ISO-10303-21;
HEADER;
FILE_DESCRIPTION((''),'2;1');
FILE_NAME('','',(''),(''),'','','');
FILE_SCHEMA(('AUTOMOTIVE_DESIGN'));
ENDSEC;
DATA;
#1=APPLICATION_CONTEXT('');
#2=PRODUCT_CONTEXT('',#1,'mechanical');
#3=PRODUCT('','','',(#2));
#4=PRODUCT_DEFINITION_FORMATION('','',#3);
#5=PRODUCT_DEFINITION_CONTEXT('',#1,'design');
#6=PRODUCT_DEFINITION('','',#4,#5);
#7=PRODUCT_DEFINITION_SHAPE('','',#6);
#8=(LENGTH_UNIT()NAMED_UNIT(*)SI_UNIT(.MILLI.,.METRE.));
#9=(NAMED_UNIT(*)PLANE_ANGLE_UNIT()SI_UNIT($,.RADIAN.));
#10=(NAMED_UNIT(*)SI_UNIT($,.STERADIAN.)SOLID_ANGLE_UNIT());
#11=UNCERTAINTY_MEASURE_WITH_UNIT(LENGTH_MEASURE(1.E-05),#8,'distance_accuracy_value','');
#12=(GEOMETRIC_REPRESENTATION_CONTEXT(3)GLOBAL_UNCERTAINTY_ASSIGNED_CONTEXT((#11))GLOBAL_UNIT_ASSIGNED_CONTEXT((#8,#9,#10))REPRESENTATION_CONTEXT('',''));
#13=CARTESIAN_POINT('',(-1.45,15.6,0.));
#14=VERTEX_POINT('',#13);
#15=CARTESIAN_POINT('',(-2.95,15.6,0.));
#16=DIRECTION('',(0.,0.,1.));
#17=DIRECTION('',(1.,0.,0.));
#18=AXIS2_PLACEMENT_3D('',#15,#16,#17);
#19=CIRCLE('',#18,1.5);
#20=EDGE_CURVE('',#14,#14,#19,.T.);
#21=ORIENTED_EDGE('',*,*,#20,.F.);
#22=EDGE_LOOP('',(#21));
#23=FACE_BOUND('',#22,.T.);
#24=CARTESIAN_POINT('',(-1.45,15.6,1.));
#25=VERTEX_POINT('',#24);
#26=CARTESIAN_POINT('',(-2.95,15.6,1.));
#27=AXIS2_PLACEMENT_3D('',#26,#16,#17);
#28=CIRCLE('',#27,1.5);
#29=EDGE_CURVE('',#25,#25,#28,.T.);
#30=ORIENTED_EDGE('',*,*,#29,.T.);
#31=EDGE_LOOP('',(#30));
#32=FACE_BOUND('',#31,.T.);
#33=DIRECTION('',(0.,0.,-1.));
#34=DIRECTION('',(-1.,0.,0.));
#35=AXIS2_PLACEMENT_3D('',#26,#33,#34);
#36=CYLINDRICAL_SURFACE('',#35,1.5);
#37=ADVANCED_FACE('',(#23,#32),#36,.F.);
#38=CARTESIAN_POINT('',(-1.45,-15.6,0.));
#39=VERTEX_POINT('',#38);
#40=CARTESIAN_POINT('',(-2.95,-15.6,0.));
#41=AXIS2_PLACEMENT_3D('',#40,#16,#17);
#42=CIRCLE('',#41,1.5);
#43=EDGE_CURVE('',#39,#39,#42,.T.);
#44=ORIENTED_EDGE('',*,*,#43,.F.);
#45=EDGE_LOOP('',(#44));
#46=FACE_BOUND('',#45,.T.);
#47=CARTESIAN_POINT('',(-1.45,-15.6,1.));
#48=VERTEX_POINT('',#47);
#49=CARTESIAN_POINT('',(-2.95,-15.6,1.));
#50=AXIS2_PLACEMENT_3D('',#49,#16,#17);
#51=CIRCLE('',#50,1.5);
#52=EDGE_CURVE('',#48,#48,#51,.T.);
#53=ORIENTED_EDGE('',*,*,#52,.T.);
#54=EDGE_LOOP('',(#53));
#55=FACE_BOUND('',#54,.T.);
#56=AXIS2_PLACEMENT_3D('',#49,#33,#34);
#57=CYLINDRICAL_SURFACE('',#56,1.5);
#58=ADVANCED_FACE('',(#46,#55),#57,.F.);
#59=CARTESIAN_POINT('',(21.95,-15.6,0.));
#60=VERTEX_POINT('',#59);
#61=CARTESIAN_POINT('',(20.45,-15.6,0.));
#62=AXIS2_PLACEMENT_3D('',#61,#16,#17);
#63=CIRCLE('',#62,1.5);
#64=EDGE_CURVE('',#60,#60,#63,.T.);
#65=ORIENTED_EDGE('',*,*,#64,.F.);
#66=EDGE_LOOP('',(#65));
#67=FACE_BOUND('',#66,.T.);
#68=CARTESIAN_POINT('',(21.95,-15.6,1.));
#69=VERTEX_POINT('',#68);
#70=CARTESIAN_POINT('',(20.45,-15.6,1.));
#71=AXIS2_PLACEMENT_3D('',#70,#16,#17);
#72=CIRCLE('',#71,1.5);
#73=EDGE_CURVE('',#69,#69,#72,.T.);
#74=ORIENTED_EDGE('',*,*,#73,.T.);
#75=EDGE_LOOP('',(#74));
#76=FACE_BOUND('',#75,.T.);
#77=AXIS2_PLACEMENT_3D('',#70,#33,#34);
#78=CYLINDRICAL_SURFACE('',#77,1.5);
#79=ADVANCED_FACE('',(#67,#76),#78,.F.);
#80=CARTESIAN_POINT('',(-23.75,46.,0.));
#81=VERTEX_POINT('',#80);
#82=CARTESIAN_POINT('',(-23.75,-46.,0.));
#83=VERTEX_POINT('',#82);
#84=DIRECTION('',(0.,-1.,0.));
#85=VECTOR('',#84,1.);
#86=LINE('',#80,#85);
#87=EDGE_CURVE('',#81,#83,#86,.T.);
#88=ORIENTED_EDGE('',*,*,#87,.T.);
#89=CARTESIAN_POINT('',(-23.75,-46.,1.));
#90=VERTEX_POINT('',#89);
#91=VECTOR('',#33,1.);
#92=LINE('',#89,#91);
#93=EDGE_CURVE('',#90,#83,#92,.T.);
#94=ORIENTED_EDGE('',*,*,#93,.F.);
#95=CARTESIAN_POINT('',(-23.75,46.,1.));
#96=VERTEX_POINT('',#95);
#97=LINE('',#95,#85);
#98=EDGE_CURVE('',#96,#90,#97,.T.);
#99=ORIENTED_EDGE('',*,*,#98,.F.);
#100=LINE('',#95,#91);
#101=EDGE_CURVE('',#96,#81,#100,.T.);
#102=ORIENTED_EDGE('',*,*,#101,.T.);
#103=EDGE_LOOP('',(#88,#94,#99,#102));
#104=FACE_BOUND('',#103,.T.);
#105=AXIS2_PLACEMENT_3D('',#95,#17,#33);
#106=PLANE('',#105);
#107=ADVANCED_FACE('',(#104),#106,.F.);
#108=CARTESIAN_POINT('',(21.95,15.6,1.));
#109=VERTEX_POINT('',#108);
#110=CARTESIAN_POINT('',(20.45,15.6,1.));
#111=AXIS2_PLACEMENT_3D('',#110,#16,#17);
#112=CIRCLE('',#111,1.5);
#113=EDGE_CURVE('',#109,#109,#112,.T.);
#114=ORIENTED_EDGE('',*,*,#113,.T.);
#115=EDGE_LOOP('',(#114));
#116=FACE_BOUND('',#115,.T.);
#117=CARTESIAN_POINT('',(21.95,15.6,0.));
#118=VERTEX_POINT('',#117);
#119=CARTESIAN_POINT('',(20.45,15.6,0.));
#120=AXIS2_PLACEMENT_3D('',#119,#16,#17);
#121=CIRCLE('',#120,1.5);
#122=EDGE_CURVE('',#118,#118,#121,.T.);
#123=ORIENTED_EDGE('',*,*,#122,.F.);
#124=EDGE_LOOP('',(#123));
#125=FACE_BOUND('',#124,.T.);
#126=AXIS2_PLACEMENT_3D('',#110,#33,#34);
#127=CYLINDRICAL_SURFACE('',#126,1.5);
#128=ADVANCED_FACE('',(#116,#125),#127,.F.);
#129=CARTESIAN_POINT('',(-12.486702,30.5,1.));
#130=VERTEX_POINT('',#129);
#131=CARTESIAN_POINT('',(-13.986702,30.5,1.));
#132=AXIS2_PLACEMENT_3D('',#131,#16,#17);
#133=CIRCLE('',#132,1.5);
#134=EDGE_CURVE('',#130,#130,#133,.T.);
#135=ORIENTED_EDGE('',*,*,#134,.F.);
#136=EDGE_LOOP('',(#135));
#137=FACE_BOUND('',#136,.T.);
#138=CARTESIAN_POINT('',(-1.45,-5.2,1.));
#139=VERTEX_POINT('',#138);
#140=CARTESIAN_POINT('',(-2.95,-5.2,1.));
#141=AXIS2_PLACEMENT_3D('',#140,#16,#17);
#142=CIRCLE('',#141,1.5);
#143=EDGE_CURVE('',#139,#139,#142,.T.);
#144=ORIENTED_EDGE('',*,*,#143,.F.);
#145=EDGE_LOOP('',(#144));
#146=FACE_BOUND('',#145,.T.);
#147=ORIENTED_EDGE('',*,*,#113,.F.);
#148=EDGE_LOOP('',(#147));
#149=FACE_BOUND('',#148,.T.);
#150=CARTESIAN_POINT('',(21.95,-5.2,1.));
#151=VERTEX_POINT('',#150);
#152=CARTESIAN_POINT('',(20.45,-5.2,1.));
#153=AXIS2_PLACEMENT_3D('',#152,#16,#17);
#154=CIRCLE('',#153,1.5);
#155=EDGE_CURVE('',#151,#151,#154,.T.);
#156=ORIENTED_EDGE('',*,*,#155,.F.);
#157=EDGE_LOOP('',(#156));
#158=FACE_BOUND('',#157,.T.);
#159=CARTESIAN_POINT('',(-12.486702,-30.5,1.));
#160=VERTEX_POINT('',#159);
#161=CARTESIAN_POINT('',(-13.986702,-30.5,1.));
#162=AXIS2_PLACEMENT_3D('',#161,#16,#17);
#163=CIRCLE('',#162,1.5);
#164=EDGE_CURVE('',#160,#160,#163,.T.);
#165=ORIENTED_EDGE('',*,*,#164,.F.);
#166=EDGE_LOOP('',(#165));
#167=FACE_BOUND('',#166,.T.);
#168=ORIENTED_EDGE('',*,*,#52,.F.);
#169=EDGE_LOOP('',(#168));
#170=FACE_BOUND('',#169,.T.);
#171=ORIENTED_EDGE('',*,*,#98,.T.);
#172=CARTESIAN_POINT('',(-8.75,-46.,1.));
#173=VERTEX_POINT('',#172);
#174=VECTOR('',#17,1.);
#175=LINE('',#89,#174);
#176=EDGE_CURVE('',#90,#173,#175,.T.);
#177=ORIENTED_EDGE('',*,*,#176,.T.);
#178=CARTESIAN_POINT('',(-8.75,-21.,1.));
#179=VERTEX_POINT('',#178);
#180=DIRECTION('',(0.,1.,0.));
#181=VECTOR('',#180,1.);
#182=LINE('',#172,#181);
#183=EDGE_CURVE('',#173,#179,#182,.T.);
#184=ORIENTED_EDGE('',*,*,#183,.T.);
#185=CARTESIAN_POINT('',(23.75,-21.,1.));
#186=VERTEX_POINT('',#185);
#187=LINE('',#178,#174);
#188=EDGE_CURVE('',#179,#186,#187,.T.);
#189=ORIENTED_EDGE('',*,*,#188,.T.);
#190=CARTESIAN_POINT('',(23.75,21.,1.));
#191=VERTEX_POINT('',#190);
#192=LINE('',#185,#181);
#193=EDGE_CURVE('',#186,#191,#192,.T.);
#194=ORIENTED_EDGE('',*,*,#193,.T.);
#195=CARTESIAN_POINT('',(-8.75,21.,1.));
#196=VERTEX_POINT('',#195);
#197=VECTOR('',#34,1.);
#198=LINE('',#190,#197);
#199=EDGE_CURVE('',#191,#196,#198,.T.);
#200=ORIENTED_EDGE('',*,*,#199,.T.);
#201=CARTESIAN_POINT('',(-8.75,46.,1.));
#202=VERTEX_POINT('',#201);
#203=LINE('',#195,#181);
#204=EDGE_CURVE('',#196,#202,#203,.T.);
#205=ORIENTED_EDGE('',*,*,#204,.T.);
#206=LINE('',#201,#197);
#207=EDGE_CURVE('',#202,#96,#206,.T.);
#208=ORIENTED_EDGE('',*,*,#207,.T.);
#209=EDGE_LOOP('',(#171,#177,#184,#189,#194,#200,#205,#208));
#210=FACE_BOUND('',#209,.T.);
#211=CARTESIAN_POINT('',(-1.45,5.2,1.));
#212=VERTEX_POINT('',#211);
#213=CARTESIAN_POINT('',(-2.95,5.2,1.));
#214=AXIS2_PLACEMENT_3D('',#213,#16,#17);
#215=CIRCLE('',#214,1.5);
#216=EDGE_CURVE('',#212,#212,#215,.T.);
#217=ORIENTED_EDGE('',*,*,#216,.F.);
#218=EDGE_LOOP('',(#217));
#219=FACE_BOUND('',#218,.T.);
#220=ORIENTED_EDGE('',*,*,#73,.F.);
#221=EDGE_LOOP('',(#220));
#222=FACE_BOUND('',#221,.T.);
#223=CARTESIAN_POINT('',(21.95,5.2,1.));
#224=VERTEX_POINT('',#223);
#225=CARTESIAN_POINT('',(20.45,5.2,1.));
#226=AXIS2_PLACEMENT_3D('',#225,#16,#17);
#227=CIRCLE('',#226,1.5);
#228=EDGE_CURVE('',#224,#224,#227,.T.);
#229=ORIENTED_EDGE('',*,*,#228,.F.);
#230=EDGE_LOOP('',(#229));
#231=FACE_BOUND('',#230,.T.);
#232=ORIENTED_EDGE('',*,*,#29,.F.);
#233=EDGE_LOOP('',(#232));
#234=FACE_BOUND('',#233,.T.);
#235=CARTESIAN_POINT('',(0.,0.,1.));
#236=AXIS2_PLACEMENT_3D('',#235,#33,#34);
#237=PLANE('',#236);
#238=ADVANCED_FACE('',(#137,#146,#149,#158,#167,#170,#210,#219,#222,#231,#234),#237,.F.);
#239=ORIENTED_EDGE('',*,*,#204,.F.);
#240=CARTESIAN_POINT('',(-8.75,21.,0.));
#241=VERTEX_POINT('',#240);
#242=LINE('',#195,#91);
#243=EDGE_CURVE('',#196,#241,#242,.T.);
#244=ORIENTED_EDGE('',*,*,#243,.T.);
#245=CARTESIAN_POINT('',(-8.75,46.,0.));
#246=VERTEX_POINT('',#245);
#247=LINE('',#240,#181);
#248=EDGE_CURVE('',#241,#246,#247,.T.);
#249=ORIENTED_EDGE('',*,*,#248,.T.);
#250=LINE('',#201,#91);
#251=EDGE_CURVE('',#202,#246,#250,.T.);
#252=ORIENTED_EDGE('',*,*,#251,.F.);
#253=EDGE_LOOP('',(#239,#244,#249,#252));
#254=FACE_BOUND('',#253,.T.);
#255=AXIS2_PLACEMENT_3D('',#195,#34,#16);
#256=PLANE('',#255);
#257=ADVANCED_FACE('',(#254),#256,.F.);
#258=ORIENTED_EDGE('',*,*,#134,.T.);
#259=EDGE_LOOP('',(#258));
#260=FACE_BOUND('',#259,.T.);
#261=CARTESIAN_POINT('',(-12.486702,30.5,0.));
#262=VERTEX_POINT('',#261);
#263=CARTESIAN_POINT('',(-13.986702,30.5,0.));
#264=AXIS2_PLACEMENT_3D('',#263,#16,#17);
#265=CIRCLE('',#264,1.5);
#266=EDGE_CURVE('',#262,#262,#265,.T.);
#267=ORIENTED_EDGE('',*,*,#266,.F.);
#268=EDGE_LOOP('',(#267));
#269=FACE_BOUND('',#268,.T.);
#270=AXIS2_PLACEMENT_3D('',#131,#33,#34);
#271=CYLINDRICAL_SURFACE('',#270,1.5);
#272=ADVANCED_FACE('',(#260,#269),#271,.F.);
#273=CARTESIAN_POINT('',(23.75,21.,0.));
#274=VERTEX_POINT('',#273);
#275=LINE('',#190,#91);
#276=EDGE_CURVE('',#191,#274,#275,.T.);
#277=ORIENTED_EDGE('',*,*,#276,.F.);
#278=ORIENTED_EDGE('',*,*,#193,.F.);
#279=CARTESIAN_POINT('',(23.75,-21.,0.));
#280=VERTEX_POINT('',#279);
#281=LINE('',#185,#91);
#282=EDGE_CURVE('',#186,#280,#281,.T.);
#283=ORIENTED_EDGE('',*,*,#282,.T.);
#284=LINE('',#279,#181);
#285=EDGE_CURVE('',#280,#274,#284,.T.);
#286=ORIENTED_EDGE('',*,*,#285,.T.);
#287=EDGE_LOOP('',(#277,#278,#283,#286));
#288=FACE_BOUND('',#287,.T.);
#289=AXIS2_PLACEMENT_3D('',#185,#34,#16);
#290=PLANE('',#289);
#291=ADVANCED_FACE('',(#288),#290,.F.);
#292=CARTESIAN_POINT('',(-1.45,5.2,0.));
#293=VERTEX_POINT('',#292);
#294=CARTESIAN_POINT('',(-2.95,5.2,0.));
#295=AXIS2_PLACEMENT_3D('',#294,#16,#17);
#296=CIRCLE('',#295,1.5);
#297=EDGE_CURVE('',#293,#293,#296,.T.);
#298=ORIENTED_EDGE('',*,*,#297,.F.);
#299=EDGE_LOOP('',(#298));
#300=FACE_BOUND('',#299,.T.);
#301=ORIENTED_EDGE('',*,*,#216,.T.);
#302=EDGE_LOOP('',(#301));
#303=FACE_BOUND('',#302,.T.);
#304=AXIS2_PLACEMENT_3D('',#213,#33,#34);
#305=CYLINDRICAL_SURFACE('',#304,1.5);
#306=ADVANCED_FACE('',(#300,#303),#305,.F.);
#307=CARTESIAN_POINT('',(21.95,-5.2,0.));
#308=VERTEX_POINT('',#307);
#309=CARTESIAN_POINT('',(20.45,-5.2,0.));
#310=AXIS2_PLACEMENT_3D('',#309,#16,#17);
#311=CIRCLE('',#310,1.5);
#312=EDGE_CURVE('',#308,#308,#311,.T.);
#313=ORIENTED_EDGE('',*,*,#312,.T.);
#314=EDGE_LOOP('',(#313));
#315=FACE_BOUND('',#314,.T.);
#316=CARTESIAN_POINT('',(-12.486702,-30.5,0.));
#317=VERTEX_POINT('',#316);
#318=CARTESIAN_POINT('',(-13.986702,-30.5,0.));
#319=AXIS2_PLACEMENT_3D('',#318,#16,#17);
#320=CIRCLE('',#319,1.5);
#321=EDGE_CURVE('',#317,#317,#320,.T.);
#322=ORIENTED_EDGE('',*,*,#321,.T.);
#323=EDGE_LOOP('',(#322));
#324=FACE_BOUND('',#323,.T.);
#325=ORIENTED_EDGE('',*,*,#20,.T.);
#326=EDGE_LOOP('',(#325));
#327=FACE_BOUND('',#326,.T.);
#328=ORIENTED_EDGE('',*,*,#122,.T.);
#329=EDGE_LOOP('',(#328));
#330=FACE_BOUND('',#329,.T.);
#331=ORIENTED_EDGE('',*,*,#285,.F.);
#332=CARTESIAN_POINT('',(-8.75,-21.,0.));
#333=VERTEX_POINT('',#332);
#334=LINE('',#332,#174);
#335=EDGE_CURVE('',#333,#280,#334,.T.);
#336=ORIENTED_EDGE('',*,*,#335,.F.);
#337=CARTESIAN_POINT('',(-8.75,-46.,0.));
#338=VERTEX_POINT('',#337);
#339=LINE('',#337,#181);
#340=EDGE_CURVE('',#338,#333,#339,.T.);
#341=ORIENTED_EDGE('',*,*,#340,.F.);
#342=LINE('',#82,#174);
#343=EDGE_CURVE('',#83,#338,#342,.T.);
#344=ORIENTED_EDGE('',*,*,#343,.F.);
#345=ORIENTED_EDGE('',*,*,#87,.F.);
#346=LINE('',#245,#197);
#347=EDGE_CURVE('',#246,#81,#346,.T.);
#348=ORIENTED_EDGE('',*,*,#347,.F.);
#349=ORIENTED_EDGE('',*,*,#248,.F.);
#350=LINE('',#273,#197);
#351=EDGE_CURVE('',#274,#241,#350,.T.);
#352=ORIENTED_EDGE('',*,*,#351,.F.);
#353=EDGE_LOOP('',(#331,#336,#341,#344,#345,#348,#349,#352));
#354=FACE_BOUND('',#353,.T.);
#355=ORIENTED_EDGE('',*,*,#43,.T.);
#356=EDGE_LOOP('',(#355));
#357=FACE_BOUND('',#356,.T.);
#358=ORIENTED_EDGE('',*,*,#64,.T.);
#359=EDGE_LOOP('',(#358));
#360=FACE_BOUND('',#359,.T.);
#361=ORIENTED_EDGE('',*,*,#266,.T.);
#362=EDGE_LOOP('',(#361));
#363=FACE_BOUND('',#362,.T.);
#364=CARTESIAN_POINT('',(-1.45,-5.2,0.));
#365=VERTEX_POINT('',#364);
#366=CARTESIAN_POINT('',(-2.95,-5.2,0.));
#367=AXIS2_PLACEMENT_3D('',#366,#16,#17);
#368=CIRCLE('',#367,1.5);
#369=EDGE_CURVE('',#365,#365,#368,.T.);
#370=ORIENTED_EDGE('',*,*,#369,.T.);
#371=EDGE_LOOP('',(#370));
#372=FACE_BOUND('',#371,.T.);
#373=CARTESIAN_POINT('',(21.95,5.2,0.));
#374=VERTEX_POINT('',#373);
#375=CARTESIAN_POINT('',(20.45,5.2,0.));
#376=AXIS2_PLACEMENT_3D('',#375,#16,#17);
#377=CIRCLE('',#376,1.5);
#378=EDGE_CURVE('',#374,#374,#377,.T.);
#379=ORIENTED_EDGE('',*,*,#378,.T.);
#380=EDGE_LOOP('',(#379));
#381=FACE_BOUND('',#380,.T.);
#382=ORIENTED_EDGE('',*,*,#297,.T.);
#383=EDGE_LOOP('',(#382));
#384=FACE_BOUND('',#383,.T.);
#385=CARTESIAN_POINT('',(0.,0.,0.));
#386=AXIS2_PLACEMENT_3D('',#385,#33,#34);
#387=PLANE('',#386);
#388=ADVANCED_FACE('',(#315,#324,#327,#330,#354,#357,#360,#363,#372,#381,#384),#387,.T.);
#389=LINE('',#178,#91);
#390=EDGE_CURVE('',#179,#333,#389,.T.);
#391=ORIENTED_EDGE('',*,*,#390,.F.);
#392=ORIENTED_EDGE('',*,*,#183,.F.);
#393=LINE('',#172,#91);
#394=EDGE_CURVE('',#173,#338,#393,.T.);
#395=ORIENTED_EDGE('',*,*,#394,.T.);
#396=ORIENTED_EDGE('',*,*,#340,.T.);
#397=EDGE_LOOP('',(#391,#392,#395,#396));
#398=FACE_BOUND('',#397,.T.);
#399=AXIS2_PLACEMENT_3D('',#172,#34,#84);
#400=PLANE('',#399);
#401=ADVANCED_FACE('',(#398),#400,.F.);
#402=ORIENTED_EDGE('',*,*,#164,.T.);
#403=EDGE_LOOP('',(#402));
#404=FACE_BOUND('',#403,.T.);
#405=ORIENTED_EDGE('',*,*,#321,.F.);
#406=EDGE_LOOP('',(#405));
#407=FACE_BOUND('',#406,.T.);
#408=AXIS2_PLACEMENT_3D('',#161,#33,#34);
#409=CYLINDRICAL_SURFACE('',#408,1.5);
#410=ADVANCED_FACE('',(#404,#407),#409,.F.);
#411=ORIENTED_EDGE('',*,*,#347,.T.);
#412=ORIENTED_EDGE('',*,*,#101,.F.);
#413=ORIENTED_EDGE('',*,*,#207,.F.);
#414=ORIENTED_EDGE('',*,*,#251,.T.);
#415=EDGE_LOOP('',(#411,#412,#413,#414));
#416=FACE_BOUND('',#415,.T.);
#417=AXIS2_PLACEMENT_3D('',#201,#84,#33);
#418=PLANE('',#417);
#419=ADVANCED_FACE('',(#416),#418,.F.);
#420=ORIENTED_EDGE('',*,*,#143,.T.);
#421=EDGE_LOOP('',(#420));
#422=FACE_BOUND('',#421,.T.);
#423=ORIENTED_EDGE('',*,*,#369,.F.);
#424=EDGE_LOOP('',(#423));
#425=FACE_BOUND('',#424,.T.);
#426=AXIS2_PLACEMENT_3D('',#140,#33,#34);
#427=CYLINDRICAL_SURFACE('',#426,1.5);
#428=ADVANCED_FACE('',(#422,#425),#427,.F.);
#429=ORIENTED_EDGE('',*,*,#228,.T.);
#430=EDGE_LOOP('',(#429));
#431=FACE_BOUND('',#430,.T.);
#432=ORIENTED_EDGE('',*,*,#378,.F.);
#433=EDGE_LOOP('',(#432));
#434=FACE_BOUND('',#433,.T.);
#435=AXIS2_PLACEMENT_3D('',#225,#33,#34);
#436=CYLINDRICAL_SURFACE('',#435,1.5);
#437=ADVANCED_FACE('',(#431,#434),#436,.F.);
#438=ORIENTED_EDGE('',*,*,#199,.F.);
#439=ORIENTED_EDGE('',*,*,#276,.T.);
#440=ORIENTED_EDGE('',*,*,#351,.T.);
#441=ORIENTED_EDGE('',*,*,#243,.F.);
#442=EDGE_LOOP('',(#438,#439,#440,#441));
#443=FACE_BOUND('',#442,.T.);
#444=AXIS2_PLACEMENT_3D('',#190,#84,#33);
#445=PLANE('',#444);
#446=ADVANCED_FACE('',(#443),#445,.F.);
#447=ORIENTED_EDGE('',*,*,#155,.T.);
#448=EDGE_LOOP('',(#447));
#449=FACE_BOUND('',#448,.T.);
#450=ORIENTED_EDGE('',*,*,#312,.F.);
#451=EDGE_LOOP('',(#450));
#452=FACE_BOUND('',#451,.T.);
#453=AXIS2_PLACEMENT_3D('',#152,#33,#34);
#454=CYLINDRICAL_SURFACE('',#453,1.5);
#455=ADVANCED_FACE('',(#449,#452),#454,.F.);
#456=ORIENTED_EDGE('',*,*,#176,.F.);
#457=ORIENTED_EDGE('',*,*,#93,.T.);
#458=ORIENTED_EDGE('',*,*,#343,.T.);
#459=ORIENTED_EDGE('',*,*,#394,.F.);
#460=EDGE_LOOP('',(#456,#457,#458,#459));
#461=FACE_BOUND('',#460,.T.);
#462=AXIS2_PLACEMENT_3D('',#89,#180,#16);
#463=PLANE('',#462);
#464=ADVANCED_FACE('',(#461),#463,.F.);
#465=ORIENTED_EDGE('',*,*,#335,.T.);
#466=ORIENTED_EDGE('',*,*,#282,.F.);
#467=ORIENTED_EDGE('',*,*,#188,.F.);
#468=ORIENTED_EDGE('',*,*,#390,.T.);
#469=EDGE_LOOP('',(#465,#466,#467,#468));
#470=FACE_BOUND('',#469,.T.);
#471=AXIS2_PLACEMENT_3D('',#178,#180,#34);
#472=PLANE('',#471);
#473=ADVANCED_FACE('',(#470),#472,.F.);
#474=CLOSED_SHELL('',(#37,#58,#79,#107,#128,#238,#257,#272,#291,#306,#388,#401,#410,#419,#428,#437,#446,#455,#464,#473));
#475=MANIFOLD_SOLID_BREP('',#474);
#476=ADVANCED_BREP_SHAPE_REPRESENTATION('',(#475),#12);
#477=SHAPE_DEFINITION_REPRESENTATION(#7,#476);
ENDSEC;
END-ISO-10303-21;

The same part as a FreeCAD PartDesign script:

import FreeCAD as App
import Part
import Sketcher
Q = App.Units.Quantity


def add_polygon(sketch, points):
    """Adds a closed chain of lines whose ends are joined by coincident constraints."""
    first, n = sketch.GeometryCount, len(points)
    for a, b in zip(points, points[1:] + points[:1]):
        sketch.addGeometry(Part.LineSegment(App.Vector(*a, 0), App.Vector(*b, 0)), False)
    for i in range(n):
        sketch.addConstraint(Sketcher.Constraint("Coincident", first + i, 2, first + (i + 1) % n, 1))

doc = App.newDocument("Part")
body = doc.addObject("PartDesign::Body", "Body")

# Sketch on XY plane
sketch1 = body.newObject("Sketcher::SketchObject", "Sketch")
sketch1.AttachmentSupport = (doc.getObject("XY_Plane"), [""])
sketch1.MapMode = "FlatFace"
add_polygon(sketch1, [(-23.75, 46), (-23.75, -46), (-8.75, -46), (-8.75, -21), (23.75, -21), (23.75, 21), (-8.75, 21), (-8.75, 46)])  # lines 0-7
sketch1.addGeometry(Part.Circle(App.Vector(-13.986702, -30.5, 0), App.Vector(0, 0, 1), 1.5), False)  # 8
sketch1.addGeometry(Part.Circle(App.Vector(-2.95, -15.6, 0), App.Vector(0, 0, 1), 1.5), False)  # 9
sketch1.addGeometry(Part.Circle(App.Vector(-2.95, -5.2, 0), App.Vector(0, 0, 1), 1.5), False)  # 10
sketch1.addGeometry(Part.Circle(App.Vector(20.45, -15.6, 0), App.Vector(0, 0, 1), 1.5), False)  # 11
sketch1.addGeometry(Part.Circle(App.Vector(20.45, -5.2, 0), App.Vector(0, 0, 1), 1.5), False)  # 12
sketch1.addGeometry(Part.Circle(App.Vector(-2.95, 5.2, 0), App.Vector(0, 0, 1), 1.5), False)  # 13
sketch1.addGeometry(Part.Circle(App.Vector(-2.95, 15.6, 0), App.Vector(0, 0, 1), 1.5), False)  # 14
sketch1.addGeometry(Part.Circle(App.Vector(-13.986702, 30.5, 0), App.Vector(0, 0, 1), 1.5), False)  # 15
sketch1.addGeometry(Part.Circle(App.Vector(20.45, 5.2, 0), App.Vector(0, 0, 1), 1.5), False)  # 16
sketch1.addGeometry(Part.Circle(App.Vector(20.45, 15.6, 0), App.Vector(0, 0, 1), 1.5), False)  # 17
sketch1.addConstraint(Sketcher.Constraint("Vertical", 0))
sketch1.addConstraint(Sketcher.Constraint("Horizontal", 1))
sketch1.addConstraint(Sketcher.Constraint("Vertical", 2))
sketch1.addConstraint(Sketcher.Constraint("Horizontal", 3))
sketch1.addConstraint(Sketcher.Constraint("Vertical", 4))
sketch1.addConstraint(Sketcher.Constraint("Horizontal", 5))
sketch1.addConstraint(Sketcher.Constraint("Vertical", 6))
sketch1.addConstraint(Sketcher.Constraint("Horizontal", 7))
sketch1.addConstraint(Sketcher.Constraint("Equal", 8, 9))
sketch1.addConstraint(Sketcher.Constraint("Equal", 9, 10))
sketch1.addConstraint(Sketcher.Constraint("Equal", 10, 11))
sketch1.addConstraint(Sketcher.Constraint("Equal", 11, 12))
sketch1.addConstraint(Sketcher.Constraint("Equal", 12, 13))
sketch1.addConstraint(Sketcher.Constraint("Equal", 13, 14))
sketch1.addConstraint(Sketcher.Constraint("Equal", 14, 15))
sketch1.addConstraint(Sketcher.Constraint("Equal", 15, 16))
sketch1.addConstraint(Sketcher.Constraint("Equal", 16, 17))
sketch1.addConstraint(Sketcher.Constraint("Symmetric", 10, 3, 13, 3, -1))
sketch1.addConstraint(Sketcher.Constraint("Symmetric", 9, 3, 14, 3, -1))
sketch1.addConstraint(Sketcher.Constraint("Symmetric", 8, 3, 15, 3, -1))
sketch1.addConstraint(Sketcher.Constraint("Symmetric", 12, 3, 16, 3, -1))
sketch1.addConstraint(Sketcher.Constraint("Symmetric", 11, 3, 17, 3, -1))
sketch1.addConstraint(Sketcher.Constraint("Symmetric", 2, 2, 5, 2, -1))
sketch1.addConstraint(Sketcher.Constraint("Horizontal", 9, 3, 11, 3))
sketch1.addConstraint(Sketcher.Constraint("Horizontal", 10, 3, 12, 3))
sketch1.addConstraint(Sketcher.Constraint("Vertical", 9, 3, 10, 3))
sketch1.addConstraint(Sketcher.Constraint("Vertical", 11, 3, 12, 3))
sketch1.addConstraint(Sketcher.Constraint("Equal", 2, 6))
sketch1.addConstraint(Sketcher.Constraint("Diameter", 8, Q("3 mm")))
sketch1.addConstraint(Sketcher.Constraint("DistanceX", 1, 1, 1, 2, Q("15 mm")))
sketch1.addConstraint(Sketcher.Constraint("DistanceY", 0, 2, 0, 1, Q("92 mm")))
sketch1.addConstraint(Sketcher.Constraint("DistanceY", 2, 1, 2, 2, Q("25 mm")))
sketch1.addConstraint(Sketcher.Constraint("DistanceX", 3, 1, 3, 2, Q("32.5 mm")))
sketch1.addConstraint(Sketcher.Constraint("DistanceY", 8, 3, -1, 1, Q("30.5 mm")))
sketch1.addConstraint(Sketcher.Constraint("DistanceY", 9, 3, -1, 1, Q("15.6 mm")))
sketch1.addConstraint(Sketcher.Constraint("DistanceY", 10, 3, -1, 1, Q("5.2 mm")))
sketch1.addConstraint(Sketcher.Constraint("DistanceX", 9, 3, 11, 3, Q("23.4 mm")))
sketch1.addConstraint(Sketcher.Constraint("DistanceX", 0, 2, 9, 3, Q("20.8 mm")))
sketch1.addConstraint(Sketcher.Constraint("DistanceX", 9, 3, -1, 1, Q("2.95 mm")))
sketch1.addConstraint(Sketcher.Constraint("DistanceX", 8, 3, -1, 1, Q("13.986702 mm")))
pad1 = body.newObject("PartDesign::Pad", "Pad")
pad1.Profile = sketch1
pad1.Length = 1

doc.recompute()
